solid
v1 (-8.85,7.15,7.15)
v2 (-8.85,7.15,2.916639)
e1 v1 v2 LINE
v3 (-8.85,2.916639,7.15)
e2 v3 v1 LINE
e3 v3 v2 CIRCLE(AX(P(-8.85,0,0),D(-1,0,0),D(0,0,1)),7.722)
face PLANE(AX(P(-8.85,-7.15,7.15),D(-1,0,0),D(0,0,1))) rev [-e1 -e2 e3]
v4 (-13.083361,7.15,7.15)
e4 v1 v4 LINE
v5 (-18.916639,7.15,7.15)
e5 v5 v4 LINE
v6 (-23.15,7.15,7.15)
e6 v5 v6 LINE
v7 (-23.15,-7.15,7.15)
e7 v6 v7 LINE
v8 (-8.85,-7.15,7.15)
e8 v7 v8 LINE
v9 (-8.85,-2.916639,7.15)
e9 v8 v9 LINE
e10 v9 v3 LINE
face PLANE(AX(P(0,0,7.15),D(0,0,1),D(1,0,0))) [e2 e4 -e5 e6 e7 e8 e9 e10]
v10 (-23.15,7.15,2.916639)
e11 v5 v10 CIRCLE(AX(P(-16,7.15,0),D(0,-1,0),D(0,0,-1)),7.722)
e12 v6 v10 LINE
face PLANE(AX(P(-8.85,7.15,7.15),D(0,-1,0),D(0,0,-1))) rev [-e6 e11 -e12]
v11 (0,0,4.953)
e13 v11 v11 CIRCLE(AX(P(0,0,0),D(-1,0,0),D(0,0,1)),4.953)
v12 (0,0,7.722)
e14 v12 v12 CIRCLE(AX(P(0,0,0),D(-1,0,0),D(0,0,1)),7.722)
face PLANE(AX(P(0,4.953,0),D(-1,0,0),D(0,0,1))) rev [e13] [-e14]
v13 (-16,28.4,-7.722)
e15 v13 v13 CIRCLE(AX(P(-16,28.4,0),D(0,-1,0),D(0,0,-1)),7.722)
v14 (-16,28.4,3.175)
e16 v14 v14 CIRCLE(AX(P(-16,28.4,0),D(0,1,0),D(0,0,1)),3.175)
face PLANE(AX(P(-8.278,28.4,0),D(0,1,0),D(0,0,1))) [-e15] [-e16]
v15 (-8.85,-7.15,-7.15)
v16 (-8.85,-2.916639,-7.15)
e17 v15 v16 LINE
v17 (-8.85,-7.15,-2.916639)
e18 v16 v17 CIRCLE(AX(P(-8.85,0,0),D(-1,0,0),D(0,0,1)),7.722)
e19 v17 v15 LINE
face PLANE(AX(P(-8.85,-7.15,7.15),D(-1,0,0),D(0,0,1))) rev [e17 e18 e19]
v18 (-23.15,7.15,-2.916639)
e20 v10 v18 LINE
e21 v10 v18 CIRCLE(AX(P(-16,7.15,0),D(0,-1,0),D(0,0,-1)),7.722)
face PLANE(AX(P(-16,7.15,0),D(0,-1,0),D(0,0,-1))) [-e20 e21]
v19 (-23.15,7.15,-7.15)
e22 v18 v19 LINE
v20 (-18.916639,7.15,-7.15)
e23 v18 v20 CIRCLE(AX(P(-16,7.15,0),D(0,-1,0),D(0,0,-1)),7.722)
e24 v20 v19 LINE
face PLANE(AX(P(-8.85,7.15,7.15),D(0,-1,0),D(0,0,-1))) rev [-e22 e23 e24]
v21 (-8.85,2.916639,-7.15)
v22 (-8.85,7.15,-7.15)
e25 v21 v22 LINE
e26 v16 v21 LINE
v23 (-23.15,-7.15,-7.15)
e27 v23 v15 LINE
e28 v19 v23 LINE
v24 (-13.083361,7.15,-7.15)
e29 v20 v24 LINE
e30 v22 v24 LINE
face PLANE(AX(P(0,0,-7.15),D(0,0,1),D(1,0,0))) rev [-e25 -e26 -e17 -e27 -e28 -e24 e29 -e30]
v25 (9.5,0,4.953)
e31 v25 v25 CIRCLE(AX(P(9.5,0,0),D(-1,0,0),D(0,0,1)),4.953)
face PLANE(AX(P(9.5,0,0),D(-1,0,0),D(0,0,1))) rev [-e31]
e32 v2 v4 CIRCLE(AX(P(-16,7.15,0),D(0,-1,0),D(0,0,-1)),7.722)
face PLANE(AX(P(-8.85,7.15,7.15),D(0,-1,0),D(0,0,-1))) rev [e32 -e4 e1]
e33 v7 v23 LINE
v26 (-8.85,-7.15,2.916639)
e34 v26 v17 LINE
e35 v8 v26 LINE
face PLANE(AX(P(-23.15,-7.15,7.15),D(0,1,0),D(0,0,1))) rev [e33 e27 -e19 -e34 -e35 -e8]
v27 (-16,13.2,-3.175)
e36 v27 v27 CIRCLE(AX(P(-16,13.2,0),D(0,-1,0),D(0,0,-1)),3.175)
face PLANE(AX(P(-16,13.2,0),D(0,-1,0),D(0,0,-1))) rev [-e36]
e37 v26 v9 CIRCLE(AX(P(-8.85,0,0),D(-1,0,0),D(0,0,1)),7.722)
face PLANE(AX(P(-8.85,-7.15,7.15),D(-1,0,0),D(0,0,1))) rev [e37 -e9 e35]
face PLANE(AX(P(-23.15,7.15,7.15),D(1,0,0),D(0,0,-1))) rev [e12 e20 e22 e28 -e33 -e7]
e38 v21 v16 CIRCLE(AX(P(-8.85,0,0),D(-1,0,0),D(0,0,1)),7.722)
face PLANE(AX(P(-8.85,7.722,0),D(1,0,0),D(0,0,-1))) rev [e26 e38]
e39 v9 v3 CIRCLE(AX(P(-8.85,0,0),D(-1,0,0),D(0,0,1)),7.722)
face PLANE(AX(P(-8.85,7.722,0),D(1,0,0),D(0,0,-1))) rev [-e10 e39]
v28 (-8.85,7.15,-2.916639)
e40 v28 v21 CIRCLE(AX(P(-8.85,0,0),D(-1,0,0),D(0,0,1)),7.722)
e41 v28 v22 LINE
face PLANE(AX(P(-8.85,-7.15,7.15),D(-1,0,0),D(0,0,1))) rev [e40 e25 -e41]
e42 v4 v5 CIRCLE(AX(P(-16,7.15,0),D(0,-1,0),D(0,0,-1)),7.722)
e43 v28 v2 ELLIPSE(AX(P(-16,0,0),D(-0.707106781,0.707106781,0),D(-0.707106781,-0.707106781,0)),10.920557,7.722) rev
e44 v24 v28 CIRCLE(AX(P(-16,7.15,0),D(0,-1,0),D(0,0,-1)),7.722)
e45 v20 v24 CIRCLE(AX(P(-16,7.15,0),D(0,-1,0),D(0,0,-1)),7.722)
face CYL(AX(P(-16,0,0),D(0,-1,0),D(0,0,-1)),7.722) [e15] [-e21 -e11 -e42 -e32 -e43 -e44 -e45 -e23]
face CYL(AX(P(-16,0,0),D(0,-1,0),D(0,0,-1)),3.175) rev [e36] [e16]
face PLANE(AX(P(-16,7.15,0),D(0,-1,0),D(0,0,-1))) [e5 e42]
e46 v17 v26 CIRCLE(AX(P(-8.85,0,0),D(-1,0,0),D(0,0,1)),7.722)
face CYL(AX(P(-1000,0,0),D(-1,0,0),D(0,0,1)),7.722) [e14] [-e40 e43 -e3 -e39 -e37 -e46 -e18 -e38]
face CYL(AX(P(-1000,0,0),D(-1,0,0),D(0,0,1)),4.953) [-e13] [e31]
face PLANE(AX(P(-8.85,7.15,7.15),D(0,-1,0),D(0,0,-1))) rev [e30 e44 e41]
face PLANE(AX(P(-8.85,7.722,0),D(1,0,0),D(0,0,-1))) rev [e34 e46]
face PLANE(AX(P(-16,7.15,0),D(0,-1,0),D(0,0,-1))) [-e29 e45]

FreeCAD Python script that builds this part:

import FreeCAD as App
import Part
import Sketcher

doc = App.newDocument("Part")
body = doc.addObject("PartDesign::Body", "Body")

sketch1 = body.newObject("Sketcher::SketchObject", "Sketch")
sketch1.AttachmentSupport = (doc.getObject("XY_Plane"), [""])
sketch1.MapMode = "FlatFace"
sketch1.addGeometry([
    Part.LineSegment(App.Vector(-23.15, 7.15, 0), App.Vector(-23.15, -7.15, 0)),
    Part.LineSegment(App.Vector(-23.15, -7.15, 0), App.Vector(-8.85, -7.15, 0)),
    Part.LineSegment(App.Vector(-8.85, -7.15, 0), App.Vector(-8.85, 7.15, 0)),
    Part.LineSegment(App.Vector(-8.85, 7.15, 0), App.Vector(-23.15, 7.15, 0)),
], False)
sketch1.addConstraint([
    Sketcher.Constraint("Coincident", 0, 2, 1, 1),
    Sketcher.Constraint("Coincident", 1, 2, 2, 1),
    Sketcher.Constraint("Coincident", 2, 2, 3, 1),
    Sketcher.Constraint("Coincident", 3, 2, 0, 1),
    Sketcher.Constraint("Vertical", 0),
    Sketcher.Constraint("Horizontal", 1),
    Sketcher.Constraint("Vertical", 2),
    Sketcher.Constraint("Horizontal", 3),
    Sketcher.Constraint("Equal", 3, 0),
    Sketcher.Constraint("DistanceX", 1, 1, 1, 2, 14.3),
    Sketcher.Constraint("DistanceX", 0, 2, -1, 1, 23.15),
    Sketcher.Constraint("DistanceY", 0, 2, -1, 1, 7.15),
])
pad1 = body.newObject("PartDesign::Pad", "Pad")
pad1.Profile = sketch1
pad1.Length = 14.3
pad1.Midplane = True

sketch2 = body.newObject("Sketcher::SketchObject", "Sketch001")
sketch2.AttachmentSupport = (doc.getObject("XY_Plane"), [""])
sketch2.MapMode = "FlatFace"
sketch2.addGeometry([
    Part.LineSegment(App.Vector(9.5, 0, 0), App.Vector(9.5, 4.953, 0)),
    Part.LineSegment(App.Vector(9.5, 4.953, 0), App.Vector(0, 4.953, 0)),
    Part.LineSegment(App.Vector(0, 4.953, 0), App.Vector(0, 7.722, 0)),
    Part.LineSegment(App.Vector(0, 7.722, 0), App.Vector(-8.85, 7.722, 0)),
    Part.LineSegment(App.Vector(-8.85, 7.722, 0), App.Vector(-8.85, 0, 0)),
    Part.LineSegment(App.Vector(-8.85, 0, 0), App.Vector(9.5, 0, 0)),
], False)
sketch2.addConstraint([
    Sketcher.Constraint("Coincident", 0, 2, 1, 1),
    Sketcher.Constraint("Coincident", 1, 2, 2, 1),
    Sketcher.Constraint("Coincident", 2, 2, 3, 1),
    Sketcher.Constraint("Coincident", 3, 2, 4, 1),
    Sketcher.Constraint("Coincident", 4, 2, 5, 1),
    Sketcher.Constraint("Coincident", 5, 2, 0, 1),
    Sketcher.Constraint("Vertical", 0),
    Sketcher.Constraint("Horizontal", 1),
    Sketcher.Constraint("Vertical", 2),
    Sketcher.Constraint("Horizontal", 3),
    Sketcher.Constraint("Vertical", 4),
    Sketcher.Constraint("Horizontal", 5),
    Sketcher.Constraint("PointOnObject", 1, 2, -2),
    Sketcher.Constraint("PointOnObject", 4, 2, -1),
    Sketcher.Constraint("DistanceX", 1, 2, 1, 1, 9.5),
    Sketcher.Constraint("DistanceX", 3, 2, 3, 1, 8.85),
    Sketcher.Constraint("DistanceY", 0, 1, 0, 2, 4.953),
    Sketcher.Constraint("DistanceY", 2, 1, 2, 2, 2.769),
])
revolution = body.newObject("PartDesign::Revolution", "Revolution")
revolution.Profile = sketch2
revolution.ReferenceAxis = (sketch2, ["H_Axis"])
revolution.Angle = 360

sketch3 = body.newObject("Sketcher::SketchObject", "Sketch002")
sketch3.AttachmentSupport = (doc.getObject("XY_Plane"), [""])
sketch3.MapMode = "FlatFace"
sketch3.addGeometry([
    Part.LineSegment(App.Vector(-16, 28.4, 0), App.Vector(-16, 7.15, 0)),
    Part.LineSegment(App.Vector(-16, 7.15, 0), App.Vector(-8.278, 7.15, 0)),
    Part.LineSegment(App.Vector(-8.278, 7.15, 0), App.Vector(-8.278, 28.4, 0)),
    Part.LineSegment(App.Vector(-8.278, 28.4, 0), App.Vector(-16, 28.4, 0)),
], False)
sketch3.addGeometry(Part.LineSegment(App.Vector(-16, 7.15, 0), App.Vector(-16, 28.4, 0)), True)
sketch3.addConstraint([
    Sketcher.Constraint("Coincident", 0, 2, 1, 1),
    Sketcher.Constraint("Coincident", 1, 2, 2, 1),
    Sketcher.Constraint("Coincident", 2, 2, 3, 1),
    Sketcher.Constraint("Coincident", 3, 2, 0, 1),
    Sketcher.Constraint("Vertical", 0),
    Sketcher.Constraint("Horizontal", 1),
    Sketcher.Constraint("Vertical", 2),
    Sketcher.Constraint("Horizontal", 3),
    Sketcher.Constraint("Vertical", 4),
    Sketcher.Constraint("Coincident", 4, 1, 0, 2),
    Sketcher.Constraint("Horizontal", 2, 2, 4, 2),
    Sketcher.Constraint("DistanceX", 0, 2, -1, 1, 16.0),
    Sketcher.Constraint("DistanceY", 0, 2, 0, 1, 21.25),
    Sketcher.Constraint("DistanceY", -1, 1, 2, 2, 28.4),
    Sketcher.Constraint("DistanceX", 1, 1, 1, 2, 7.722),
])
revolution2 = body.newObject("PartDesign::Revolution", "Revolution001")
revolution2.Profile = sketch3
revolution2.ReferenceAxis = (sketch3, ["Axis0"])
revolution2.Angle = 360

sketch4 = body.newObject("Sketcher::SketchObject", "Sketch003")
sketch4.AttachmentSupport = (doc.getObject("XY_Plane"), [""])
sketch4.MapMode = "FlatFace"
sketch4.addGeometry([
    Part.LineSegment(App.Vector(-16, 29.4, 0), App.Vector(-16, 13.2, 0)),
    Part.LineSegment(App.Vector(-16, 13.2, 0), App.Vector(-12.825, 13.2, 0)),
    Part.LineSegment(App.Vector(-12.825, 13.2, 0), App.Vector(-12.825, 29.4, 0)),
    Part.LineSegment(App.Vector(-12.825, 29.4, 0), App.Vector(-16, 29.4, 0)),
], False)
sketch4.addGeometry(Part.LineSegment(App.Vector(-16, 13.2, 0), App.Vector(-16, 29.4, 0)), True)
sketch4.addConstraint([
    Sketcher.Constraint("Coincident", 0, 2, 1, 1),
    Sketcher.Constraint("Coincident", 1, 2, 2, 1),
    Sketcher.Constraint("Coincident", 2, 2, 3, 1),
    Sketcher.Constraint("Coincident", 3, 2, 0, 1),
    Sketcher.Constraint("Vertical", 0),
    Sketcher.Constraint("Horizontal", 1),
    Sketcher.Constraint("Vertical", 2),
    Sketcher.Constraint("Horizontal", 3),
    Sketcher.Constraint("Vertical", 4),
    Sketcher.Constraint("Coincident", 4, 1, 0, 2),
    Sketcher.Constraint("Horizontal", 2, 2, 4, 2),
    Sketcher.Constraint("DistanceY", 0, 2, 0, 1, 16.2),
    Sketcher.Constraint("DistanceX", 0, 2, -1, 1, 16.0),
    Sketcher.Constraint("DistanceY", -1, 1, 0, 2, 13.2),
    Sketcher.Constraint("DistanceX", 1, 1, 1, 2, 3.175),
])
groove = body.newObject("PartDesign::Groove", "Groove")
groove.Profile = sketch4
groove.ReferenceAxis = (sketch4, ["Axis0"])
groove.Angle = 360

doc.recompute()
